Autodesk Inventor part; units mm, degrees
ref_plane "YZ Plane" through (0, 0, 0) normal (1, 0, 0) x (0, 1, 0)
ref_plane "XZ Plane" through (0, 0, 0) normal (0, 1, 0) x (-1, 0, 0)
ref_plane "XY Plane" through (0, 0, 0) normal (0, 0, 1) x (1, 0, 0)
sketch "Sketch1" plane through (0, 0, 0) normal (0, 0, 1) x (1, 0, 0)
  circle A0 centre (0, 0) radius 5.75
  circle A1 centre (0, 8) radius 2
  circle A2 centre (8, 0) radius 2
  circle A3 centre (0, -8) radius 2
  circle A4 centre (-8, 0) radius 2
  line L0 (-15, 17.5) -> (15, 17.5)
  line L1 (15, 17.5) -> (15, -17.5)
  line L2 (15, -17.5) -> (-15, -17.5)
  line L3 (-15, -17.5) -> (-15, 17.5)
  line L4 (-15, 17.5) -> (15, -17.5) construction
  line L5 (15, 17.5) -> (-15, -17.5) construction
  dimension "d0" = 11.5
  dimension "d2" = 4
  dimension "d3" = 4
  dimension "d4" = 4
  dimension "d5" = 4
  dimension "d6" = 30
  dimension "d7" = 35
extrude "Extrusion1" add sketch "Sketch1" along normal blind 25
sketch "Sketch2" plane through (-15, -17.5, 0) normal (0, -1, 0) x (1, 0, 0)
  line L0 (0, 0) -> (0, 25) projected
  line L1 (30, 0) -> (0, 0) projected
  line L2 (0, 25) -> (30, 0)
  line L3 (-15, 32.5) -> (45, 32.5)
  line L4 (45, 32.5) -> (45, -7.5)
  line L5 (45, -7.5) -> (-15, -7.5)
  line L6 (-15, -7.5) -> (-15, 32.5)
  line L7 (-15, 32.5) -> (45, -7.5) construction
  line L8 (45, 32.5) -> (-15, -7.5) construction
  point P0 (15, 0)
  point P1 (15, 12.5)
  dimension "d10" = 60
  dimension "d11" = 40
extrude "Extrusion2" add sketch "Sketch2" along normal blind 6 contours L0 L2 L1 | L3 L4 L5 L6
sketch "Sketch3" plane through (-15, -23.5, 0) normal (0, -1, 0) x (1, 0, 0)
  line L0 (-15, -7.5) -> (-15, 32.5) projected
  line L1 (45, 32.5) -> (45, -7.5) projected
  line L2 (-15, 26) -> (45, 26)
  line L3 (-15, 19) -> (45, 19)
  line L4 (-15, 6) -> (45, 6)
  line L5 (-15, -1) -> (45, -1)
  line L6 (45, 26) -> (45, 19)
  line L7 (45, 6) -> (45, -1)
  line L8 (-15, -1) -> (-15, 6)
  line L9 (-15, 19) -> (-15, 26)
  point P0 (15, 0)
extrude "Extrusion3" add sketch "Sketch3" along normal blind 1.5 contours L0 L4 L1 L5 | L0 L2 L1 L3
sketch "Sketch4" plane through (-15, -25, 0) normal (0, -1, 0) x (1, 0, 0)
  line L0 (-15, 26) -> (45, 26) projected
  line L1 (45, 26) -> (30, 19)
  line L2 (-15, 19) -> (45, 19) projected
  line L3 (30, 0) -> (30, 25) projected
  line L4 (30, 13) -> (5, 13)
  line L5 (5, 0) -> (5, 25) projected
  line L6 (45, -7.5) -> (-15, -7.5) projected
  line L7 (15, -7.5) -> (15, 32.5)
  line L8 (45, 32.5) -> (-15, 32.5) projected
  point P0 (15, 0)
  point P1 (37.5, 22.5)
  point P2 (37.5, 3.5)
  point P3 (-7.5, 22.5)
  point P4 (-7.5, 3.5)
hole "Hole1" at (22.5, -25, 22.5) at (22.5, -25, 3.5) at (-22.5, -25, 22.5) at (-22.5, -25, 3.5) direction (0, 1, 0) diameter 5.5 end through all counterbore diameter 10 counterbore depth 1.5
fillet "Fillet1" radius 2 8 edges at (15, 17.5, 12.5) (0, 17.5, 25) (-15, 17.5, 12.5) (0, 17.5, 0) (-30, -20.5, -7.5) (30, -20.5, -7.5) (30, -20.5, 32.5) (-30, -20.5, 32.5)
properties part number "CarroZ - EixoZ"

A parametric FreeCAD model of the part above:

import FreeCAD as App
import Part
import Sketcher

V = App.Vector


def edges_at(feature, points):
    """Names of the edges that pass closest to the given points."""
    edges = feature.Shape.Edges
    near = lambda p: min(range(len(edges)), key=lambda i: edges[i].distToShape(Part.Vertex(*p))[0])
    return sorted({f"Edge{near(p) + 1}" for p in points})


def add_polygon(sketch, points):
    """Adds a closed chain of lines whose ends are joined by coincident constraints."""
    first, n = sketch.GeometryCount, len(points)
    for a, b in zip(points, points[1:] + points[:1]):
        sketch.addGeometry(Part.LineSegment(App.Vector(*a, 0), App.Vector(*b, 0)), False)
    for i in range(n):
        sketch.addConstraint(Sketcher.Constraint("Coincident", first + i, 2, first + (i + 1) % n, 1))

doc = App.newDocument("Part")
params = doc.addObject("Spreadsheet::Sheet", "Params")
for row, (alias, value) in enumerate([
    ("sketch1_diameter", "4 mm"),
    ("sketch1_diameter2", "11.5 mm"),
    ("sketch1_width", "30 mm"),
    ("sketch1_height", "35 mm"),
    ("pad1_length", "25 mm"),
    ("sketch2_width", "60 mm"),
    ("sketch2_height", "40 mm"),
    ("pad2_length", "6 mm"),
    ("sketch3_width", "60 mm"),
    ("sketch3_height", "7 mm"),
    ("pad3_length", "1.5 mm"),
    ("sketch4_diameter", "5.5 mm"),
    ("hole_diameter", "5.5 mm"),
    ("hole_cbore_diameter", "10 mm"),
    ("hole_cbore_depth", "1.5 mm"),
    ("fillet_radius", "2 mm"),
], start=1):
    params.set(f"A{row}", alias)
    params.set(f"B{row}", "=" + value)
    params.setAlias(f"B{row}", alias)

body = doc.addObject("PartDesign::Body", "Body")

# Sketch on XY plane
sketch1 = doc.addObject("Sketcher::SketchObject", "Sketch")
body.addObject(sketch1)
sketch1.AttachmentSupport = (doc.XY_Plane, [""])
sketch1.MapMode = "FlatFace"
add_polygon(sketch1, [(15, 17.5), (-15, 17.5), (-15, -17.5), (15, -17.5)])  # lines 0-3
sketch1.addGeometry(Part.Circle(V(0, -8, 0), V(0, 0, 1), 2), False)  # 4
sketch1.addGeometry(Part.Circle(V(-8, 0, 0), V(0, 0, 1), 2), False)  # 5
sketch1.addGeometry(Part.Circle(V(0, 0, 0), V(0, 0, 1), 5.8), False)  # 6
sketch1.addGeometry(Part.Circle(V(0, 8, 0), V(0, 0, 1), 2), False)  # 7
sketch1.addGeometry(Part.Circle(V(8, 0, 0), V(0, 0, 1), 2), False)  # 8
sketch1.addConstraint([
    Sketcher.Constraint("Horizontal", 0),
    Sketcher.Constraint("Vertical", 1),
    Sketcher.Constraint("Horizontal", 2),
    Sketcher.Constraint("Vertical", 3),
    Sketcher.Constraint("Coincident", 6, 3, -1, 1),
    Sketcher.Constraint("Equal", 4, 5),
    Sketcher.Constraint("Equal", 5, 7),
    Sketcher.Constraint("Equal", 7, 8),
    Sketcher.Constraint("Symmetric", 4, 3, 7, 3, -1, 1),
    Sketcher.Constraint("Symmetric", 5, 3, 8, 3, -1, 1),
    Sketcher.Constraint("Symmetric", 0, 2, 2, 2, -1, 1),
    Sketcher.Constraint("PointOnObject", 4, 3, -2),
    Sketcher.Constraint("PointOnObject", 5, 3, -1),
    Sketcher.Constraint("Diameter", 4, 4.0),
    Sketcher.Constraint("Diameter", 6, 11.5),
    Sketcher.Constraint("DistanceX", 0, 2, 0, 1, 30.0),
    Sketcher.Constraint("DistanceY", 1, 2, 1, 1, 35.0),
    Sketcher.Constraint("DistanceY", 4, 3, -1, 1, 8.0),
    Sketcher.Constraint("DistanceX", 5, 3, -1, 1, 8.0),
])
sketch1.setExpression("Constraints[17]", "Params.sketch1_diameter")
sketch1.setExpression("Constraints[18]", "Params.sketch1_diameter2")
sketch1.setExpression("Constraints[19]", "Params.sketch1_width")
sketch1.setExpression("Constraints[20]", "Params.sketch1_height")
pad1 = doc.addObject("PartDesign::Pad", "Pad")
body.addObject(pad1)
pad1.Profile = sketch1
pad1.setExpression("Length", "Params.pad1_length")

# Sketch on XZ plane
sketch2 = doc.addObject("Sketcher::SketchObject", "Sketch001")
body.addObject(sketch2)
sketch2.AttachmentSupport = (doc.XZ_Plane, [""])
sketch2.MapMode = "FlatFace"
sketch2.AttachmentOffset = App.Placement(V(0, 0, 17.5), App.Rotation())
add_polygon(sketch2, [(30, 32), (-30, 32), (-30, -8), (30, -8)])  # lines 0-3
sketch2.addConstraint([
    Sketcher.Constraint("Horizontal", 0),
    Sketcher.Constraint("Vertical", 1),
    Sketcher.Constraint("Horizontal", 2),
    Sketcher.Constraint("Vertical", 3),
    Sketcher.Constraint("DistanceX", 0, 2, 0, 1, 60.0),
    Sketcher.Constraint("DistanceY", 1, 2, 1, 1, 40.0),
    Sketcher.Constraint("DistanceX", 0, 2, -1, 1, 30.0),
    Sketcher.Constraint("DistanceY", -1, 1, 0, 2, 32.5),
])
sketch2.setExpression("Constraints[8]", "Params.sketch2_width")
sketch2.setExpression("Constraints[9]", "Params.sketch2_height")
pad2 = doc.addObject("PartDesign::Pad", "Pad001")
body.addObject(pad2)
pad2.Profile = sketch2
pad2.setExpression("Length", "Params.pad2_length")

# Sketch on XZ plane
sketch3 = doc.addObject("Sketcher::SketchObject", "Sketch002")
body.addObject(sketch3)
sketch3.AttachmentSupport = (doc.XZ_Plane, [""])
sketch3.MapMode = "FlatFace"
sketch3.AttachmentOffset = App.Placement(V(0, 0, 23.5), App.Rotation())
add_polygon(sketch3, [(-30, 6), (-30, -1), (30, -1), (30, 6)])  # lines 0-3
add_polygon(sketch3, [(-30, 26), (-30, 19), (30, 19), (30, 26)])  # lines 4-7
sketch3.addConstraint([
    Sketcher.Constraint("Vertical", 0),
    Sketcher.Constraint("Horizontal", 1),
    Sketcher.Constraint("Vertical", 2),
    Sketcher.Constraint("Horizontal", 3),
    Sketcher.Constraint("Vertical", 4),
    Sketcher.Constraint("Horizontal", 5),
    Sketcher.Constraint("Vertical", 6),
    Sketcher.Constraint("Horizontal", 7),
    Sketcher.Constraint("Vertical", 3, 2, 4, 2),
    Sketcher.Constraint("Vertical", 2, 2, 5, 2),
    Sketcher.Constraint("Equal", 2, 4),
    Sketcher.Constraint("DistanceX", 1, 1, 1, 2, 60.0),
    Sketcher.Constraint("DistanceY", 0, 2, 0, 1, 7.0),
    Sketcher.Constraint("DistanceX", 0, 2, -1, 1, 30.0),
    Sketcher.Constraint("DistanceY", 0, 2, -1, 1, 1.0),
    Sketcher.Constraint("DistanceY", -1, 1, 4, 2, 19.0),
])
sketch3.setExpression("Constraints[19]", "Params.sketch3_width")
sketch3.setExpression("Constraints[20]", "Params.sketch3_height")
pad3 = doc.addObject("PartDesign::Pad", "Pad002")
body.addObject(pad3)
pad3.Profile = sketch3
pad3.setExpression("Length", "Params.pad3_length")

# Sketch on XZ plane
sketch4 = doc.addObject("Sketcher::SketchObject", "Sketch003")
body.addObject(sketch4)
sketch4.AttachmentSupport = (doc.XZ_Plane, [""])
sketch4.MapMode = "FlatFace"
sketch4.AttachmentOffset = App.Placement(V(0, 0, 25), App.Rotation())
sketch4.addGeometry([
    Part.Circle(V(22.5, 22.5, 0), V(0, 0, 1), 2.8),
    Part.Circle(V(22.5, 3.5, 0), V(0, 0, 1), 2.8),
    Part.Circle(V(-22.5, 22.5, 0), V(0, 0, 1), 2.8),
    Part.Circle(V(-22.5, 3.5, 0), V(0, 0, 1), 2.8),
], False)
sketch4.addConstraint([
    Sketcher.Constraint("Equal", 0, 1),
    Sketcher.Constraint("Equal", 1, 2),
    Sketcher.Constraint("Equal", 2, 3),
    Sketcher.Constraint("Symmetric", 0, 3, 2, 3, -2),
    Sketcher.Constraint("Symmetric", 1, 3, 3, 3, -2),
    Sketcher.Constraint("Vertical", 0, 3, 1, 3),
    Sketcher.Constraint("Diameter", 0, 5.5),
    Sketcher.Constraint("DistanceY", 1, 3, 0, 3, 19.0),
    Sketcher.Constraint("DistanceX", 2, 3, 0, 3, 45.0),
    Sketcher.Constraint("DistanceY", -1, 1, 0, 3, 22.5),
])
sketch4.setExpression("Constraints[6]", "Params.sketch4_diameter")
doc.recompute()
hole = doc.addObject("PartDesign::Hole", "Hole")
body.addObject(hole)
hole.Profile = sketch4
hole.ThreadType = "None"
hole.setExpression("Diameter", "Params.hole_diameter")
hole.DepthType = "ThroughAll"
hole.HoleCutType = "Counterbore"
hole.setExpression("HoleCutDiameter", "Params.hole_cbore_diameter")
hole.setExpression("HoleCutDepth", "Params.hole_cbore_depth")
doc.recompute()

fillet = doc.addObject("PartDesign::Fillet", "Fillet")
body.addObject(fillet)
fillet.Base = (hole, edges_at(hole, [
    (15, 17.5, 12.5),
    (0, 17.5, 25),
    (-15, 17.5, 12.5),
    (0, 17.5, 0),
    (-30, -20.5, -7.5),
    (30, -20.5, -7.5),
    (30, -20.5, 32.5),
    (-30, -20.5, 32.5),
]))
fillet.setExpression("Radius", "Params.fillet_radius")

doc.recompute()
